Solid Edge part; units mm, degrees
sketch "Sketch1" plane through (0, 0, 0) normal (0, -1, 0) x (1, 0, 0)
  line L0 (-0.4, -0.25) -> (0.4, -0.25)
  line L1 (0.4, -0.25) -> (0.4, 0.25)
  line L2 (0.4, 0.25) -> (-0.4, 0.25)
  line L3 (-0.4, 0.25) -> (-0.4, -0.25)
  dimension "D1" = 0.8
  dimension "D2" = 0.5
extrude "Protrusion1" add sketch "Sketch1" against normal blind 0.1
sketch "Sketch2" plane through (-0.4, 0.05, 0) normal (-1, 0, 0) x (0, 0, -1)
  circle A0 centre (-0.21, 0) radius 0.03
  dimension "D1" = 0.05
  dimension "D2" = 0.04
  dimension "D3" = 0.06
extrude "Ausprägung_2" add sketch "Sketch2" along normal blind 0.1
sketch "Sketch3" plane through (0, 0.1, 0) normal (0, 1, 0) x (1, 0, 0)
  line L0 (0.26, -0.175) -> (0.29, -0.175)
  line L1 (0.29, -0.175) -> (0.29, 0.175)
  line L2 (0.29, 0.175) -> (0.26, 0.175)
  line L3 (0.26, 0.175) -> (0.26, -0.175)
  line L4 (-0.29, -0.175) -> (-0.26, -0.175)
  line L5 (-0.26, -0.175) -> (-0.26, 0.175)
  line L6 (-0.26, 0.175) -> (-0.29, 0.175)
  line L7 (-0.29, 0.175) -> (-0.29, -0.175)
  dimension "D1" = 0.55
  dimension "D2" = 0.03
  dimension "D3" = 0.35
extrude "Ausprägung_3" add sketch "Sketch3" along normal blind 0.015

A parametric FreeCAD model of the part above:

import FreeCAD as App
import Part
import Sketcher

doc = App.newDocument("Part")
body = doc.addObject("PartDesign::Body", "Body")

sketch1 = body.newObject("Sketcher::SketchObject", "Sketch")
sketch1.AttachmentSupport = (doc.getObject("XZ_Plane"), [""])
sketch1.MapMode = "FlatFace"
sketch1.addGeometry(Part.LineSegment(App.Vector(-0.4, 0.2, 0), App.Vector(-0.4, -0.2, 0)), False)
sketch1.addGeometry(Part.LineSegment(App.Vector(-0.4, -0.2, 0), App.Vector(0.4, -0.2, 0)), False)
sketch1.addGeometry(Part.LineSegment(App.Vector(0.4, -0.2, 0), App.Vector(0.4, 0.2, 0)), False)
sketch1.addGeometry(Part.LineSegment(App.Vector(0.4, 0.2, 0), App.Vector(-0.4, 0.2, 0)), False)
sketch1.addConstraint(Sketcher.Constraint("Coincident", 0, 2, 1, 1))
sketch1.addConstraint(Sketcher.Constraint("Coincident", 1, 2, 2, 1))
sketch1.addConstraint(Sketcher.Constraint("Coincident", 2, 2, 3, 1))
sketch1.addConstraint(Sketcher.Constraint("Coincident", 3, 2, 0, 1))
sketch1.addConstraint(Sketcher.Constraint("Vertical", 0))
sketch1.addConstraint(Sketcher.Constraint("Horizontal", 1))
sketch1.addConstraint(Sketcher.Constraint("Vertical", 2))
sketch1.addConstraint(Sketcher.Constraint("Horizontal", 3))
sketch1.addConstraint(Sketcher.Constraint("Symmetric", 0, 2, 2, 2, -1, 1))
sketch1.addConstraint(Sketcher.Constraint("DistanceX", 0, 2, -1, 1, 0.4))
sketch1.addConstraint(Sketcher.Constraint("DistanceY", 0, 2, 0, 1, 0.5))
pad1 = body.newObject("PartDesign::Pad", "Pad")
pad1.Profile = sketch1
pad1.Length = 0.1
pad1.Reversed = True

sketch2 = body.newObject("Sketcher::SketchObject", "Sketch001")
sketch2.AttachmentSupport = (doc.getObject("YZ_Plane"), [""])
sketch2.MapMode = "FlatFace"
sketch2.AttachmentOffset = App.Placement(App.Vector(0, 0, -0.4), App.Rotation())
sketch2.addGeometry(Part.Circle(App.Vector(0.05, 0.21, 0), App.Vector(0, 0, 1), 0.03), False)
sketch2.addConstraint(Sketcher.Constraint("Diameter", 0, 0.06))
sketch2.addConstraint(Sketcher.Constraint("DistanceX", -1, 1, 0, 3, 0.05))
sketch2.addConstraint(Sketcher.Constraint("DistanceY", -1, 1, 0, 3, 0.21))
pad2 = body.newObject("PartDesign::Pad", "Pad001")
pad2.Profile = sketch2
pad2.Length = 0.1
pad2.Reversed = True

sketch3 = body.newObject("Sketcher::SketchObject", "Sketch002")
sketch3.AttachmentSupport = (doc.getObject("XZ_Plane"), [""])
sketch3.MapMode = "FlatFace"
sketch3.AttachmentOffset = App.Placement(App.Vector(0, 0, -0.1), App.Rotation())
sketch3.addGeometry(Part.LineSegment(App.Vector(0.26, -0.175, 0), App.Vector(0.26, 0.175, 0)), False)
sketch3.addGeometry(Part.LineSegment(App.Vector(0.26, 0.175, 0), App.Vector(0.29, 0.175, 0)), False)
sketch3.addGeometry(Part.LineSegment(App.Vector(0.29, 0.175, 0), App.Vector(0.29, -0.175, 0)), False)
sketch3.addGeometry(Part.LineSegment(App.Vector(0.29, -0.175, 0), App.Vector(0.26, -0.175, 0)), False)
sketch3.addGeometry(Part.LineSegment(App.Vector(-0.29, -0.175, 0), App.Vector(-0.29, 0.175, 0)), False)
sketch3.addGeometry(Part.LineSegment(App.Vector(-0.29, 0.175, 0), App.Vector(-0.26, 0.175, 0)), False)
sketch3.addGeometry(Part.LineSegment(App.Vector(-0.26, 0.175, 0), App.Vector(-0.26, -0.175, 0)), False)
sketch3.addGeometry(Part.LineSegment(App.Vector(-0.26, -0.175, 0), App.Vector(-0.29, -0.175, 0)), False)
sketch3.addConstraint(Sketcher.Constraint("Coincident", 0, 2, 1, 1))
sketch3.addConstraint(Sketcher.Constraint("Coincident", 1, 2, 2, 1))
sketch3.addConstraint(Sketcher.Constraint("Coincident", 2, 2, 3, 1))
sketch3.addConstraint(Sketcher.Constraint("Coincident", 3, 2, 0, 1))
sketch3.addConstraint(Sketcher.Constraint("Coincident", 4, 2, 5, 1))
sketch3.addConstraint(Sketcher.Constraint("Coincident", 5, 2, 6, 1))
sketch3.addConstraint(Sketcher.Constraint("Coincident", 6, 2, 7, 1))
sketch3.addConstraint(Sketcher.Constraint("Coincident", 7, 2, 4, 1))
sketch3.addConstraint(Sketcher.Constraint("Vertical", 0))
sketch3.addConstraint(Sketcher.Constraint("Horizontal", 1))
sketch3.addConstraint(Sketcher.Constraint("Vertical", 2))
sketch3.addConstraint(Sketcher.Constraint("Horizontal", 3))
sketch3.addConstraint(Sketcher.Constraint("Vertical", 4))
sketch3.addConstraint(Sketcher.Constraint("Horizontal", 5))
sketch3.addConstraint(Sketcher.Constraint("Vertical", 6))
sketch3.addConstraint(Sketcher.Constraint("Horizontal", 7))
sketch3.addConstraint(Sketcher.Constraint("Symmetric", 2, 2, 4, 2, -1, 1))
sketch3.addConstraint(Sketcher.Constraint("Symmetric", 0, 2, 6, 2, -1, 1))
sketch3.addConstraint(Sketcher.Constraint("Horizontal", 1, 2, 4, 2))
sketch3.addConstraint(Sketcher.Constraint("DistanceX", -1, 1, 0, 2, 0.26))
sketch3.addConstraint(Sketcher.Constraint("DistanceX", -1, 1, 1, 2, 0.29))
sketch3.addConstraint(Sketcher.Constraint("DistanceY", 0, 1, 0, 2, 0.35))
pad3 = body.newObject("PartDesign::Pad", "Pad002")
pad3.Profile = sketch3
pad3.Length = 0.015
pad3.Reversed = True

doc.recompute()
